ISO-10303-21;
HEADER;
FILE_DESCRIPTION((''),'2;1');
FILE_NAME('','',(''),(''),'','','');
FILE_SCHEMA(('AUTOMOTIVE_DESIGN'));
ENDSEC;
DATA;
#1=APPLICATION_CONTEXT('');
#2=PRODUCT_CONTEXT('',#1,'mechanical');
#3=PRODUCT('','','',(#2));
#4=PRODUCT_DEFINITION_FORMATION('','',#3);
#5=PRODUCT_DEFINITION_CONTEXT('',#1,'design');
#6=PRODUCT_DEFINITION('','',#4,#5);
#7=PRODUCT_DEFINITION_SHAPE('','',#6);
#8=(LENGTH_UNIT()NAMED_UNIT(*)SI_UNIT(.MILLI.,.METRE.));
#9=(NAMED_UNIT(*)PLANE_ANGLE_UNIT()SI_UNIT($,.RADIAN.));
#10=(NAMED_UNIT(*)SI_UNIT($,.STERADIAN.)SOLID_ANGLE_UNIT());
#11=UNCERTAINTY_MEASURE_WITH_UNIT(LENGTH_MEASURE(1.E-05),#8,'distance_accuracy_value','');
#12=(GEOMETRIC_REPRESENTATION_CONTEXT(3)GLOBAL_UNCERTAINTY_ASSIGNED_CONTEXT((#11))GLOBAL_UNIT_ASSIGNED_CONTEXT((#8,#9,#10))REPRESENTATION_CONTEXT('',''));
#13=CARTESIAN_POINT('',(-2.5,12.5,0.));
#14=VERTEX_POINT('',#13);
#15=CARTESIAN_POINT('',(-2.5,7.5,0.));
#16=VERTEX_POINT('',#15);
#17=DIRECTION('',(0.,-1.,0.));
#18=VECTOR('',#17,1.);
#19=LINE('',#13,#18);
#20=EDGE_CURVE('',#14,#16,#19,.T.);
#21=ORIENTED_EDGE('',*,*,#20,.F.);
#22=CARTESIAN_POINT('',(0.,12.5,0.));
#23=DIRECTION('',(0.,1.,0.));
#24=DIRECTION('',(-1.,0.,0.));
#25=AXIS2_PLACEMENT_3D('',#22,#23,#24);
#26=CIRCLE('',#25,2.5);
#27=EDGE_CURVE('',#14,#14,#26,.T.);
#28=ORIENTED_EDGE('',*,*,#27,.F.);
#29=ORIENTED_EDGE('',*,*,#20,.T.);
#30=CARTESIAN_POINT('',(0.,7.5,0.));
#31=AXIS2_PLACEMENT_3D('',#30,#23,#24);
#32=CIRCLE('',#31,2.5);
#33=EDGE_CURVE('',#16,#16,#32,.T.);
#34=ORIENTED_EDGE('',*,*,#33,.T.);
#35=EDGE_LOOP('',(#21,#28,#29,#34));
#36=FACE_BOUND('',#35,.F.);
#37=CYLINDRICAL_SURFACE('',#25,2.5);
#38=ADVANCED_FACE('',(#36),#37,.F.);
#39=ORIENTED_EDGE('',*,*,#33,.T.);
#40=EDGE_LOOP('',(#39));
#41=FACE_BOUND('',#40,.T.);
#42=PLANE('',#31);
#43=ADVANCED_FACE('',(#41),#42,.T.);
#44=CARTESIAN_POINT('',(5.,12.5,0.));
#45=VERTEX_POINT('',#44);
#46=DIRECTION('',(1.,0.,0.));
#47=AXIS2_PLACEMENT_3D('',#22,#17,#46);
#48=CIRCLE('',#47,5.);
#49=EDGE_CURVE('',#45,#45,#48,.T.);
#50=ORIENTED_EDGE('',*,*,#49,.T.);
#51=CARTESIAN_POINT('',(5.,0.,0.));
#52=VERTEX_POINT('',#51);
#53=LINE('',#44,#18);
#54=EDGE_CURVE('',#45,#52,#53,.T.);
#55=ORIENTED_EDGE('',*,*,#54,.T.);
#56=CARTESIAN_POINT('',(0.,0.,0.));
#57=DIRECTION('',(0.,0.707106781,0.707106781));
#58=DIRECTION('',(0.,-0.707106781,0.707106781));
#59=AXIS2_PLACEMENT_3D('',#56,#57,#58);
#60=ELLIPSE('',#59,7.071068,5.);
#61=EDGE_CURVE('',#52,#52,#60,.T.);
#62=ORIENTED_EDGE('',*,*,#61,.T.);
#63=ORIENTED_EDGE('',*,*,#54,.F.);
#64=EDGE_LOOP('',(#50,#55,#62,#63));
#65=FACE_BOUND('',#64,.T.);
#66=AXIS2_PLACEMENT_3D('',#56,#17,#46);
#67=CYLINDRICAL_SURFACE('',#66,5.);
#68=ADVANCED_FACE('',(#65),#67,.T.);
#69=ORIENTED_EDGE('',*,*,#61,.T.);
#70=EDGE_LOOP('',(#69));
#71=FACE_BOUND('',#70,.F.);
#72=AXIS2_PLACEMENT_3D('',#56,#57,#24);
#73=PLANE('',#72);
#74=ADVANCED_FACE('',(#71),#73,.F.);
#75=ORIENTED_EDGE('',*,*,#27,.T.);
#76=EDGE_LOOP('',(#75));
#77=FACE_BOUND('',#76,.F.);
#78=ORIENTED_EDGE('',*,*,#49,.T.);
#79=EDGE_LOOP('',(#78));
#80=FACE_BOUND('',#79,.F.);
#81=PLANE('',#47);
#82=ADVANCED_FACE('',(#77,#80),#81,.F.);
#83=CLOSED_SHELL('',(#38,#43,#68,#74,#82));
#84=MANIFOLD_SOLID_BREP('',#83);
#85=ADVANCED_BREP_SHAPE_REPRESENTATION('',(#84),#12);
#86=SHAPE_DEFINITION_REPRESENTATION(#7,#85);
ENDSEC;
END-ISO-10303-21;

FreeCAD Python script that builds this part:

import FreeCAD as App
import Part
import Sketcher
from FreeCAD import Vector


def add_polygon(sketch, points):
    """Adds a closed chain of lines whose ends are joined by coincident constraints."""
    first, n = sketch.GeometryCount, len(points)
    for a, b in zip(points, points[1:] + points[:1]):
        sketch.addGeometry(Part.LineSegment(App.Vector(*a, 0), App.Vector(*b, 0)), False)
    for i in range(n):
        sketch.addConstraint(Sketcher.Constraint("Coincident", first + i, 2, first + (i + 1) % n, 1))

doc = App.newDocument("Part")
params = doc.addObject("Spreadsheet::Sheet", "Params")
for row, (alias, value) in enumerate([
    ("sketch1_diameter", "10 mm"),
    ("pad1_length", "25 mm"),
    ("sketch2_width", "50 mm"),
    ("pocket1_length", "25 mm"),
    ("sketch3_diameter", "5 mm"),
    ("pocket2_length", "5 mm"),
], start=1):
    params.set(f"A{row}", alias)
    params.set(f"B{row}", "=" + value)
    params.setAlias(f"B{row}", alias)

body = doc.addObject("PartDesign::Body", "Body")

# Sketch on XZ plane
sketch1 = body.newObject("Sketcher::SketchObject", "Sketch")
sketch1.AttachmentSupport = (doc.getObject("XZ_Plane"), [""])
sketch1.MapMode = "FlatFace"
sketch1.addGeometry(Part.Circle(Vector(0, 0, 0), Vector(0, 0, 1), 5), False)
sketch1.addConstraint([
    Sketcher.Constraint("Coincident", 0, 3, -1, 1),
    Sketcher.Constraint("Diameter", 0, 10.0),
])
sketch1.setExpression("Constraints[1]", "Params.sketch1_diameter")
pad1 = body.newObject("PartDesign::Pad", "Pad")
pad1.Profile = sketch1
pad1.setExpression("Length", "Params.pad1_length")
pad1.Midplane = True

# Sketch on an angled plane
sketch2 = body.newObject("Sketcher::SketchObject", "Sketch001")
sketch2.Placement = App.Placement(Vector(0, 0, 0), App.Rotation(Vector(-1, 0, 0), Vector(0, -0.707106781, 0.707106781), Vector(0, 0.707106781, 0.707106781), "ZXY"))
add_polygon(sketch2, [(-25, 25), (-25, -25), (25, -25), (25, 25)])  # lines 0-3
sketch2.addConstraint([
    Sketcher.Constraint("Vertical", 0),
    Sketcher.Constraint("Horizontal", 1),
    Sketcher.Constraint("Vertical", 2),
    Sketcher.Constraint("Horizontal", 3),
    Sketcher.Constraint("Symmetric", 0, 2, 2, 2, -1, 1),
    Sketcher.Constraint("Equal", 3, 0),
    Sketcher.Constraint("DistanceX", 1, 1, 1, 2, 50.0),
])
sketch2.setExpression("Constraints[10]", "Params.sketch2_width")
pocket1 = body.newObject("PartDesign::Pocket", "Pocket")
pocket1.Profile = sketch2
pocket1.setExpression("Length", "Params.pocket1_length")

# Sketch on XZ plane
sketch3 = body.newObject("Sketcher::SketchObject", "Sketch002")
sketch3.AttachmentSupport = (doc.getObject("XZ_Plane"), [""])
sketch3.MapMode = "FlatFace"
sketch3.AttachmentOffset = App.Placement(Vector(0, 0, -12.5), App.Rotation())
sketch3.addGeometry(Part.Circle(Vector(0, 0, 0), Vector(0, 0, 1), 2.5), False)
sketch3.addConstraint([
    Sketcher.Constraint("Coincident", 0, 3, -1, 1),
    Sketcher.Constraint("Diameter", 0, 5.0),
])
sketch3.setExpression("Constraints[1]", "Params.sketch3_diameter")
pocket2 = body.newObject("PartDesign::Pocket", "Pocket001")
pocket2.Profile = sketch3
pocket2.setExpression("Length", "Params.pocket2_length")
pocket2.Reversed = True

doc.recompute()
